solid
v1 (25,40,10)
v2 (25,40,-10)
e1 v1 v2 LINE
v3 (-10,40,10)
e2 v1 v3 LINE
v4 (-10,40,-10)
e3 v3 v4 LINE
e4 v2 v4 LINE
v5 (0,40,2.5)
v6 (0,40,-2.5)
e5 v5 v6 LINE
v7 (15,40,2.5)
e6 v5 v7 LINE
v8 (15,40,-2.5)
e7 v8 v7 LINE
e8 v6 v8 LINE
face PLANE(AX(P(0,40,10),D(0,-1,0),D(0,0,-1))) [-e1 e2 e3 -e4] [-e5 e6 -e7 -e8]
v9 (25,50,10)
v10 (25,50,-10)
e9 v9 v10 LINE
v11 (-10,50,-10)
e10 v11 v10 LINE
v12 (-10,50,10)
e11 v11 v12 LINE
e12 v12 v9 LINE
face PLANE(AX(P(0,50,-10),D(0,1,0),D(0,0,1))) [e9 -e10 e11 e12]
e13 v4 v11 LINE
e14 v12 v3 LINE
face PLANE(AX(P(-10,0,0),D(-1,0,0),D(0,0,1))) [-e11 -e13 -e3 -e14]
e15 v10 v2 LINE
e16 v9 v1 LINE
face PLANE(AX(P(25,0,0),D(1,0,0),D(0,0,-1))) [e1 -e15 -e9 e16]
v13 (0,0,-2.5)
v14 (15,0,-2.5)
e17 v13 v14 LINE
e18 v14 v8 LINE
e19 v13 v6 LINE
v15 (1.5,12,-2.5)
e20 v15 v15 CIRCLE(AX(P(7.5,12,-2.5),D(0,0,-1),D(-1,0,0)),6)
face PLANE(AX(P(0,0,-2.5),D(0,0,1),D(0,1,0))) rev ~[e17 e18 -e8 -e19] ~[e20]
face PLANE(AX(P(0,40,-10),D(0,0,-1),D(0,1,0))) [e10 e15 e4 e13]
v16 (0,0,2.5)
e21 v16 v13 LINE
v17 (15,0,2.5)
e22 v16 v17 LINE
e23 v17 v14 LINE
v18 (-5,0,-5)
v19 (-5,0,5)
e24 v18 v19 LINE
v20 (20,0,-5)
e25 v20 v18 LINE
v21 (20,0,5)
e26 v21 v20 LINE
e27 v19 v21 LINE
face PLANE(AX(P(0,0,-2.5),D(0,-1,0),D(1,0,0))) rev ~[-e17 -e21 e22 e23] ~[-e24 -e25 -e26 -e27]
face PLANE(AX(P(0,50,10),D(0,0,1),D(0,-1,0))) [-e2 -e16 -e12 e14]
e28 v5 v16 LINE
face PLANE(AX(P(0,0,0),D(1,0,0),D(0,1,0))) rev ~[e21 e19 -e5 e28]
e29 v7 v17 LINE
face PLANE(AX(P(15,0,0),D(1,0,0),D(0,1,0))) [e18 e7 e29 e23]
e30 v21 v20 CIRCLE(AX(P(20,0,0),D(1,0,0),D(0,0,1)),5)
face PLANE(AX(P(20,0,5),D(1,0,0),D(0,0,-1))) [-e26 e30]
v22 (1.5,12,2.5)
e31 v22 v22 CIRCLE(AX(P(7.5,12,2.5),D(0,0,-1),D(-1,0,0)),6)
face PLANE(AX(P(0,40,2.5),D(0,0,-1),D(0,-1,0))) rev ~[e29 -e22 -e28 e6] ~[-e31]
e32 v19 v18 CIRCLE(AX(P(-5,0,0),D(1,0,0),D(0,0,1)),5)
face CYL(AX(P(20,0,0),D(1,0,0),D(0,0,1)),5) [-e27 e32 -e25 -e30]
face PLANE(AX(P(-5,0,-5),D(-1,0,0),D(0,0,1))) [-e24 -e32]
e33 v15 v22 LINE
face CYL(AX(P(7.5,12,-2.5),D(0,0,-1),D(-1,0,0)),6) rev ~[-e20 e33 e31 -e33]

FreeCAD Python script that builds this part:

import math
import FreeCAD as App
import Part
import Sketcher

V = App.Vector
Q = App.Units.Quantity

doc = App.newDocument("Part")
body = doc.addObject("PartDesign::Body", "Body")

# Sketch on YZ plane
sketch1 = body.newObject("Sketcher::SketchObject", "Sketch")
sketch1.AttachmentSupport = (doc.getObject("YZ_Plane"), [""])
sketch1.MapMode = "FlatFace"
sketch1.addGeometry(Part.LineSegment(V(50, -10, 0), V(50, 10, 0)), False)
sketch1.addGeometry(Part.LineSegment(V(50, 10, 0), V(40, 10, 0)), False)
sketch1.addGeometry(Part.LineSegment(V(40, 10, 0), V(40, 2, 0)), False)
sketch1.addGeometry(Part.LineSegment(V(40, 2, 0), V(0, 2, 0)), False)
sketch1.addGeometry(Part.LineSegment(V(0, 2, 0), V(0, -2, 0)), False)
sketch1.addGeometry(Part.LineSegment(V(0, -2, 0), V(40, -2, 0)), False)
sketch1.addGeometry(Part.LineSegment(V(40, -2, 0), V(40, -10, 0)), False)
sketch1.addGeometry(Part.LineSegment(V(40, -10, 0), V(50, -10, 0)), False)
sketch1.addConstraint(Sketcher.Constraint("Coincident", 0, 2, 1, 1))
sketch1.addConstraint(Sketcher.Constraint("Coincident", 1, 2, 2, 1))
sketch1.addConstraint(Sketcher.Constraint("Coincident", 2, 2, 3, 1))
sketch1.addConstraint(Sketcher.Constraint("Coincident", 3, 2, 4, 1))
sketch1.addConstraint(Sketcher.Constraint("Coincident", 4, 2, 5, 1))
sketch1.addConstraint(Sketcher.Constraint("Coincident", 5, 2, 6, 1))
sketch1.addConstraint(Sketcher.Constraint("Coincident", 6, 2, 7, 1))
sketch1.addConstraint(Sketcher.Constraint("Coincident", 7, 2, 0, 1))
sketch1.addConstraint(Sketcher.Constraint("Vertical", 0))
sketch1.addConstraint(Sketcher.Constraint("Horizontal", 1))
sketch1.addConstraint(Sketcher.Constraint("Vertical", 2))
sketch1.addConstraint(Sketcher.Constraint("Horizontal", 3))
sketch1.addConstraint(Sketcher.Constraint("Vertical", 4))
sketch1.addConstraint(Sketcher.Constraint("Horizontal", 5))
sketch1.addConstraint(Sketcher.Constraint("Vertical", 6))
sketch1.addConstraint(Sketcher.Constraint("Horizontal", 7))
sketch1.addConstraint(Sketcher.Constraint("Symmetric", 3, 2, 4, 2, -1, 1))
sketch1.addConstraint(Sketcher.Constraint("Symmetric", 1, 2, 6, 2, -1))
sketch1.addConstraint(Sketcher.Constraint("DistanceX", 1, 2, 1, 1, Q("10 mm")))
sketch1.addConstraint(Sketcher.Constraint("DistanceX", 3, 2, 3, 1, Q("40 mm")))
sketch1.addConstraint(Sketcher.Constraint("DistanceY", 0, 1, 0, 2, Q("20 mm")))
sketch1.addConstraint(Sketcher.Constraint("DistanceY", 4, 2, 4, 1, Q("5 mm")))
pad1 = body.newObject("PartDesign::Pad", "Pad")
pad1.Profile = sketch1
pad1.Length = 15

# Sketch on YZ plane
sketch2 = body.newObject("Sketcher::SketchObject", "Sketch001")
sketch2.AttachmentSupport = (doc.getObject("YZ_Plane"), [""])
sketch2.MapMode = "FlatFace"
sketch2.AttachmentOffset = App.Placement(V(0, 0, 15), App.Rotation())
sketch2.addGeometry(Part.LineSegment(V(50, -10, 0), V(50, 10, 0)), False)
sketch2.addGeometry(Part.LineSegment(V(50, 10, 0), V(40, 10, 0)), False)
sketch2.addGeometry(Part.LineSegment(V(40, 10, 0), V(40, -10, 0)), False)
sketch2.addGeometry(Part.LineSegment(V(40, -10, 0), V(50, -10, 0)), False)
sketch2.addConstraint(Sketcher.Constraint("Coincident", 0, 2, 1, 1))
sketch2.addConstraint(Sketcher.Constraint("Coincident", 1, 2, 2, 1))
sketch2.addConstraint(Sketcher.Constraint("Coincident", 2, 2, 3, 1))
sketch2.addConstraint(Sketcher.Constraint("Coincident", 3, 2, 0, 1))
sketch2.addConstraint(Sketcher.Constraint("Vertical", 0))
sketch2.addConstraint(Sketcher.Constraint("Horizontal", 1))
sketch2.addConstraint(Sketcher.Constraint("Vertical", 2))
sketch2.addConstraint(Sketcher.Constraint("Horizontal", 3))
sketch2.addConstraint(Sketcher.Constraint("DistanceX", 1, 2, 1, 1, Q("10 mm")))
sketch2.addConstraint(Sketcher.Constraint("DistanceY", 0, 1, 0, 2, Q("20 mm")))
sketch2.addConstraint(Sketcher.Constraint("DistanceX", -1, 1, 0, 2, Q("50 mm")))
sketch2.addConstraint(Sketcher.Constraint("DistanceY", -1, 1, 0, 2, Q("10 mm")))
pad2 = body.newObject("PartDesign::Pad", "Pad001")
pad2.Profile = sketch2
pad2.Length = 10

# Sketch on YZ plane
sketch3 = body.newObject("Sketcher::SketchObject", "Sketch002")
sketch3.AttachmentSupport = (doc.getObject("YZ_Plane"), [""])
sketch3.MapMode = "FlatFace"
sketch3.addGeometry(Part.LineSegment(V(50, -10, 0), V(40, -10, 0)), False)
sketch3.addGeometry(Part.LineSegment(V(40, -10, 0), V(40, 10, 0)), False)
sketch3.addGeometry(Part.LineSegment(V(40, 10, 0), V(50, 10, 0)), False)
sketch3.addGeometry(Part.LineSegment(V(50, 10, 0), V(50, -10, 0)), False)
sketch3.addConstraint(Sketcher.Constraint("Coincident", 0, 2, 1, 1))
sketch3.addConstraint(Sketcher.Constraint("Coincident", 1, 2, 2, 1))
sketch3.addConstraint(Sketcher.Constraint("Coincident", 2, 2, 3, 1))
sketch3.addConstraint(Sketcher.Constraint("Coincident", 3, 2, 0, 1))
sketch3.addConstraint(Sketcher.Constraint("Horizontal", 0))
sketch3.addConstraint(Sketcher.Constraint("Vertical", 1))
sketch3.addConstraint(Sketcher.Constraint("Horizontal", 2))
sketch3.addConstraint(Sketcher.Constraint("Vertical", 3))
sketch3.addConstraint(Sketcher.Constraint("DistanceX", 0, 2, 0, 1, Q("10 mm")))
sketch3.addConstraint(Sketcher.Constraint("DistanceY", 1, 1, 1, 2, Q("20 mm")))
sketch3.addConstraint(Sketcher.Constraint("DistanceX", -1, 1, 0, 2, Q("40 mm")))
sketch3.addConstraint(Sketcher.Constraint("DistanceY", 0, 2, -1, 1, Q("10 mm")))
pad3 = body.newObject("PartDesign::Pad", "Pad002")
pad3.Profile = sketch3
pad3.Length = 10
pad3.Reversed = True

# Sketch on XY plane
sketch4 = body.newObject("Sketcher::SketchObject", "Sketch003")
sketch4.AttachmentSupport = (doc.getObject("XY_Plane"), [""])
sketch4.MapMode = "FlatFace"
sketch4.AttachmentOffset = App.Placement(V(0, 0, -2.5), App.Rotation())
sketch4.addGeometry(Part.Circle(V(8, 12, 0), V(0, 0, 1), 6), False)
sketch4.addConstraint(Sketcher.Constraint("Diameter", 0, Q("12 mm")))
sketch4.addConstraint(Sketcher.Constraint("DistanceY", -1, 1, 0, 3, Q("12 mm")))
sketch4.addConstraint(Sketcher.Constraint("DistanceX", -1, 1, 0, 3, Q("7.5 mm")))
pocket1 = body.newObject("PartDesign::Pocket", "Pocket")
pocket1.Profile = sketch4
pocket1.Length = 5
pocket1.Reversed = True

# Sketch on XZ plane
sketch5 = body.newObject("Sketcher::SketchObject", "Sketch004")
sketch5.AttachmentSupport = (doc.getObject("XZ_Plane"), [""])
sketch5.MapMode = "FlatFace"
sketch5.addGeometry(Part.LineSegment(V(20, 5, 0), V(-5, 5, 0)), False)
sketch5.addGeometry(Part.LineSegment(V(-5, 5, 0), V(-5, -5, 0)), False)
sketch5.addGeometry(Part.LineSegment(V(-5, -5, 0), V(20, -5, 0)), False)
sketch5.addGeometry(Part.LineSegment(V(20, -5, 0), V(20, 5, 0)), False)
sketch5.addConstraint(Sketcher.Constraint("Coincident", 0, 2, 1, 1))
sketch5.addConstraint(Sketcher.Constraint("Coincident", 1, 2, 2, 1))
sketch5.addConstraint(Sketcher.Constraint("Coincident", 2, 2, 3, 1))
sketch5.addConstraint(Sketcher.Constraint("Coincident", 3, 2, 0, 1))
sketch5.addConstraint(Sketcher.Constraint("Horizontal", 0))
sketch5.addConstraint(Sketcher.Constraint("Vertical", 1))
sketch5.addConstraint(Sketcher.Constraint("Horizontal", 2))
sketch5.addConstraint(Sketcher.Constraint("Vertical", 3))
sketch5.addConstraint(Sketcher.Constraint("DistanceX", 0, 2, 0, 1, Q("25 mm")))
sketch5.addConstraint(Sketcher.Constraint("DistanceY", 1, 2, 1, 1, Q("10 mm")))
sketch5.addConstraint(Sketcher.Constraint("DistanceX", 0, 2, -1, 1, Q("5 mm")))
sketch5.addConstraint(Sketcher.Constraint("DistanceY", -1, 1, 0, 2, Q("5 mm")))
pad4 = body.newObject("PartDesign::Pad", "Pad003")
pad4.Profile = sketch5
pad4.Length = 10

# Sketch on YZ plane
sketch6 = body.newObject("Sketcher::SketchObject", "Sketch005")
sketch6.AttachmentSupport = (doc.getObject("YZ_Plane"), [""])
sketch6.MapMode = "FlatFace"
sketch6.AttachmentOffset = App.Placement(V(0, 0, 20), App.Rotation())
sketch6.addGeometry(Part.ArcOfCircle(Part.Circle(V(0, 0, 0), V(0, 0, 1), 5), math.radians(90), math.radians(270)), False)
sketch6.addGeometry(Part.LineSegment(V(0, 5, 0), V(-10, 5, 0)), False)
sketch6.addGeometry(Part.LineSegment(V(-10, 5, 0), V(-10, -5, 0)), False)
sketch6.addGeometry(Part.LineSegment(V(-10, -5, 0), V(0, -5, 0)), False)
sketch6.addConstraint(Sketcher.Constraint("Tangent", 0, 1, 1, 1))
sketch6.addConstraint(Sketcher.Constraint("Coincident", 1, 2, 2, 1))
sketch6.addConstraint(Sketcher.Constraint("Coincident", 2, 2, 3, 1))
sketch6.addConstraint(Sketcher.Constraint("Tangent", 3, 2, 0, 2))
sketch6.addConstraint(Sketcher.Constraint("Horizontal", 1))
sketch6.addConstraint(Sketcher.Constraint("Vertical", 2))
sketch6.addConstraint(Sketcher.Constraint("Horizontal", 3))
sketch6.addConstraint(Sketcher.Constraint("Coincident", 0, 3, -1, 1))
sketch6.addConstraint(Sketcher.Constraint("Equal", 3, 2))
sketch6.addConstraint(Sketcher.Constraint("Radius", 0, Q("5 mm")))
pocket2 = body.newObject("PartDesign::Pocket", "Pocket001")
pocket2.Profile = sketch6
pocket2.Length = 25

doc.recompute()
